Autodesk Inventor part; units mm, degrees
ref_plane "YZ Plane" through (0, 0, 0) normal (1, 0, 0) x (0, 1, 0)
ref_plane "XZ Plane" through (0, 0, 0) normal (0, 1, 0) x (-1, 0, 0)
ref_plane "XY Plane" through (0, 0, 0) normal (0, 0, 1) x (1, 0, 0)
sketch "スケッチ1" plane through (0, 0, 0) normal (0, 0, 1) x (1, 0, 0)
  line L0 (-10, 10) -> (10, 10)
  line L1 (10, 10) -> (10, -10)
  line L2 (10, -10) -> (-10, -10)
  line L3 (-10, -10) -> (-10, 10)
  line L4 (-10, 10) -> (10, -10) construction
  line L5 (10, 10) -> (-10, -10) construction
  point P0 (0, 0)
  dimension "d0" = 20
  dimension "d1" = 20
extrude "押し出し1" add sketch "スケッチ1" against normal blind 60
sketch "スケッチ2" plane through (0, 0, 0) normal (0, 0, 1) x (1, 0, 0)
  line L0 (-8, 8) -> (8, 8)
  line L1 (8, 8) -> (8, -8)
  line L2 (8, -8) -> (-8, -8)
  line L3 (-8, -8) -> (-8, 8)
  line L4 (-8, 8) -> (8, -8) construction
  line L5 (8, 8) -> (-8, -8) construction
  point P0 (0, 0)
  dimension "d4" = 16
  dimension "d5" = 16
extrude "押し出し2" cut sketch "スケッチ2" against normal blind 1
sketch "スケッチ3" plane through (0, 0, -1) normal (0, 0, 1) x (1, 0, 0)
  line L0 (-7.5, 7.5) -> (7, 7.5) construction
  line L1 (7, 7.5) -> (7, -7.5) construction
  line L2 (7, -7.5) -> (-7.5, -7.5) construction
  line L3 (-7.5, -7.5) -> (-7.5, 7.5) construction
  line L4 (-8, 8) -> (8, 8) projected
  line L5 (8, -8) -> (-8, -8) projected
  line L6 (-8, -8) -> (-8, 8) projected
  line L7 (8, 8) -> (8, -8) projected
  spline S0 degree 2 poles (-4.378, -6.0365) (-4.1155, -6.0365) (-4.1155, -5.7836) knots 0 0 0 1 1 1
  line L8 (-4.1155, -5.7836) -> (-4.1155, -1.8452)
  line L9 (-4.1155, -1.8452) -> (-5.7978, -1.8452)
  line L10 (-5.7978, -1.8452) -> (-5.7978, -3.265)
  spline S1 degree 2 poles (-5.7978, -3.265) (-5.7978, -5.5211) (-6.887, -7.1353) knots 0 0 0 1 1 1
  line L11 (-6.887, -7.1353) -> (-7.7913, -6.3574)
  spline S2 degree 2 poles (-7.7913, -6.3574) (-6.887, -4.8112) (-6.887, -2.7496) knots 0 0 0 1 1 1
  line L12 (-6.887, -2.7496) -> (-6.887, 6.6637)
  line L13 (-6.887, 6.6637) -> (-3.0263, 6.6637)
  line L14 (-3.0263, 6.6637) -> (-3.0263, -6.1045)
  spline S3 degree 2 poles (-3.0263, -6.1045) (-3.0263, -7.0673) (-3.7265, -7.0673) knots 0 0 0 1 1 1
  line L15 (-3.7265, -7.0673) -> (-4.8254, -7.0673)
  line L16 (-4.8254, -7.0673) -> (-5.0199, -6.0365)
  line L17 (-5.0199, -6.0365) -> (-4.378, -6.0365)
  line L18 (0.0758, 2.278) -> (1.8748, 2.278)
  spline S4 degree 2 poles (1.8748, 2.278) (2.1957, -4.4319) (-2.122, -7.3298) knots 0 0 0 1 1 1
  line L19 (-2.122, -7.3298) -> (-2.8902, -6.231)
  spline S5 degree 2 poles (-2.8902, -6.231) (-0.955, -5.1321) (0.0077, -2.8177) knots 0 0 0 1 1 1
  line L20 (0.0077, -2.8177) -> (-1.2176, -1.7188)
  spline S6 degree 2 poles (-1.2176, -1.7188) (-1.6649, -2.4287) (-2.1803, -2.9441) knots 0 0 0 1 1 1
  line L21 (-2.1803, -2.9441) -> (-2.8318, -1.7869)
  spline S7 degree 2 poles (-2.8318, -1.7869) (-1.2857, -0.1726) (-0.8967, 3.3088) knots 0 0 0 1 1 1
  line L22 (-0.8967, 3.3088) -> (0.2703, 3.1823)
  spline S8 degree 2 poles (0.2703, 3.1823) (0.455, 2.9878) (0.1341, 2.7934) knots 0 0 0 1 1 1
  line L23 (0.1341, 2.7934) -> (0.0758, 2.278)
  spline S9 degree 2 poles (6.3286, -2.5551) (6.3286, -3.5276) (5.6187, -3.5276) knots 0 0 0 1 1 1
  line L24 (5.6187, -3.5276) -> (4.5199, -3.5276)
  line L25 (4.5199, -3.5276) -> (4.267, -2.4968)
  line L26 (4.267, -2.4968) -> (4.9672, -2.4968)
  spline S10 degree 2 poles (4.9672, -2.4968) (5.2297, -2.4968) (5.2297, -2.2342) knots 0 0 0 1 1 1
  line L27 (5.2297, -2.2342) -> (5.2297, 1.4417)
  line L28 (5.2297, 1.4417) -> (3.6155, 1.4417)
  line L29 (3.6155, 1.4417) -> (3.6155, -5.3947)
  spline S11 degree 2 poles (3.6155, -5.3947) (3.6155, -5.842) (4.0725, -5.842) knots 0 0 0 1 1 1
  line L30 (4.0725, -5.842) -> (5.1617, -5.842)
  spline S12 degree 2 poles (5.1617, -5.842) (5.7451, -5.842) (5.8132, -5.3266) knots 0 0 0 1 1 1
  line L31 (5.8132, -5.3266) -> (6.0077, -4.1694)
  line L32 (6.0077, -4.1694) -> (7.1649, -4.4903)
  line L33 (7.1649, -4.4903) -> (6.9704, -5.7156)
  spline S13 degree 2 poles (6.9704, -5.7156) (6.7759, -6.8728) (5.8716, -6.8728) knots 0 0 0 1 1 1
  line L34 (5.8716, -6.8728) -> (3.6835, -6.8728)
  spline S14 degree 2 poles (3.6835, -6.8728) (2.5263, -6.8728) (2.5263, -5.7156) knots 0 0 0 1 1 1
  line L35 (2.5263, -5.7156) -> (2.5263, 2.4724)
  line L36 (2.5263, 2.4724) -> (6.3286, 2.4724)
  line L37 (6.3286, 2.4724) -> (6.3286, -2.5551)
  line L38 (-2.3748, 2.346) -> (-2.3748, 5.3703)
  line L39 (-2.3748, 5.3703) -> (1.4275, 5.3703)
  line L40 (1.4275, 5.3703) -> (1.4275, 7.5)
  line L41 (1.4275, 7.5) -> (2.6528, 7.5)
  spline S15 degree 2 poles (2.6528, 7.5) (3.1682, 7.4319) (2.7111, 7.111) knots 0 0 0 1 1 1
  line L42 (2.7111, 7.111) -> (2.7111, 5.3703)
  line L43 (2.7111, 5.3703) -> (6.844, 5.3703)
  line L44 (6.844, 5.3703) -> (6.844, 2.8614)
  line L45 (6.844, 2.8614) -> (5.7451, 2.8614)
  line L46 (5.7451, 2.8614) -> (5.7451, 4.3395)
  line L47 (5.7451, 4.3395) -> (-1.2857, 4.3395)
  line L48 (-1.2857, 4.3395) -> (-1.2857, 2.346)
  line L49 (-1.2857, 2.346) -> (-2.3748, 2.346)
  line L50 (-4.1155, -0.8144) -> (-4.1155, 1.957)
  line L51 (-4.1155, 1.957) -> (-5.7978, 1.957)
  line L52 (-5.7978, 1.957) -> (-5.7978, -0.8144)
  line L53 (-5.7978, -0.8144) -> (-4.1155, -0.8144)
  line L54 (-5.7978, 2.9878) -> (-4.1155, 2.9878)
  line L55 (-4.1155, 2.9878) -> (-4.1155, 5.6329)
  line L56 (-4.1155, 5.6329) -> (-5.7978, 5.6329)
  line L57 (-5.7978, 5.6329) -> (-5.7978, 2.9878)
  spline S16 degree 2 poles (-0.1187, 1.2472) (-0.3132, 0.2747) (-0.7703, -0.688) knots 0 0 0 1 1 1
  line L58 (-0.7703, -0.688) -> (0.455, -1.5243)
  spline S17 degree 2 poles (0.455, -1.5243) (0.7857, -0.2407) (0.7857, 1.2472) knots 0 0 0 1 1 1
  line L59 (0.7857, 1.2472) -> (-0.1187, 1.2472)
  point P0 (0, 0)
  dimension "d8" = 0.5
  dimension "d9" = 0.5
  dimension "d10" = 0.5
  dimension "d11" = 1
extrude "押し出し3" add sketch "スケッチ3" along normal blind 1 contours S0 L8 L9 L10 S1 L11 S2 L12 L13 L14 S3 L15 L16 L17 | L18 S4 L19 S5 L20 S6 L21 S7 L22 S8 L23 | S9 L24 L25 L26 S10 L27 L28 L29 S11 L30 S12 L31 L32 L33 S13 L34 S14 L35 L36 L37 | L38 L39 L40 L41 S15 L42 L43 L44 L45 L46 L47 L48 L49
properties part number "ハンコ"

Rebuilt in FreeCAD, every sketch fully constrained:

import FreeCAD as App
import Part
import Sketcher
from FreeCAD import Vector
Q = App.Units.Quantity

doc = App.newDocument("Part")
body = doc.addObject("PartDesign::Body", "Body")

sketch1 = body.newObject("Sketcher::SketchObject", "Sketch")
sketch1.AttachmentSupport = (doc.getObject("XY_Plane"), [""])
sketch1.MapMode = "FlatFace"
sketch1.addGeometry([
    Part.LineSegment(Vector(10, 10, 0), Vector(-10, 10, 0)),
    Part.LineSegment(Vector(-10, 10, 0), Vector(-10, -10, 0)),
    Part.LineSegment(Vector(-10, -10, 0), Vector(10, -10, 0)),
    Part.LineSegment(Vector(10, -10, 0), Vector(10, 10, 0)),
], False)
sketch1.addConstraint([
    Sketcher.Constraint("Coincident", 0, 2, 1, 1),
    Sketcher.Constraint("Coincident", 1, 2, 2, 1),
    Sketcher.Constraint("Coincident", 2, 2, 3, 1),
    Sketcher.Constraint("Coincident", 3, 2, 0, 1),
    Sketcher.Constraint("Horizontal", 0),
    Sketcher.Constraint("Vertical", 1),
    Sketcher.Constraint("Horizontal", 2),
    Sketcher.Constraint("Vertical", 3),
    Sketcher.Constraint("Symmetric", 0, 2, 2, 2, -1, 1),
    Sketcher.Constraint("Equal", 2, 1),
    Sketcher.Constraint("DistanceX", 0, 2, 0, 1, Q("20 mm")),
])
pad1 = body.newObject("PartDesign::Pad", "Pad")
pad1.Profile = sketch1
pad1.Length = 60
pad1.Reversed = True

sketch2 = body.newObject("Sketcher::SketchObject", "Sketch001")
sketch2.AttachmentSupport = (doc.getObject("XY_Plane"), [""])
sketch2.MapMode = "FlatFace"
sketch2.addGeometry([
    Part.LineSegment(Vector(8, 8, 0), Vector(-8, 8, 0)),
    Part.LineSegment(Vector(-8, 8, 0), Vector(-8, -8, 0)),
    Part.LineSegment(Vector(-8, -8, 0), Vector(8, -8, 0)),
    Part.LineSegment(Vector(8, -8, 0), Vector(8, 8, 0)),
], False)
sketch2.addConstraint([
    Sketcher.Constraint("Coincident", 0, 2, 1, 1),
    Sketcher.Constraint("Coincident", 1, 2, 2, 1),
    Sketcher.Constraint("Coincident", 2, 2, 3, 1),
    Sketcher.Constraint("Coincident", 3, 2, 0, 1),
    Sketcher.Constraint("Horizontal", 0),
    Sketcher.Constraint("Vertical", 1),
    Sketcher.Constraint("Horizontal", 2),
    Sketcher.Constraint("Vertical", 3),
    Sketcher.Constraint("Symmetric", 0, 2, 2, 2, -1, 1),
    Sketcher.Constraint("Equal", 2, 1),
    Sketcher.Constraint("DistanceX", 0, 2, 0, 1, Q("16 mm")),
])
pocket1 = body.newObject("PartDesign::Pocket", "Pocket")
pocket1.Profile = sketch2
pocket1.Length = 1

sketch3 = body.newObject("Sketcher::SketchObject", "Sketch002")
sketch3.AttachmentSupport = (doc.getObject("XY_Plane"), [""])
sketch3.MapMode = "FlatFace"
sketch3.AttachmentOffset = App.Placement(Vector(0, 0, -1), App.Rotation())
sketch3.addGeometry([
    Part.BSplineCurve([Vector(-4.378, -6.0365, 0), Vector(-4.1155, -6.0365, 0), Vector(-4.1155, -5.7836, 0)], [3, 3], [0, 1], False, 2, [1, 1, 1], False),
    Part.LineSegment(Vector(-4.378, -6.0365, 0), Vector(-5.0199, -6.0365, 0)),
    Part.LineSegment(Vector(-5.0199, -6.0365, 0), Vector(-4.8254, -7.0673, 0)),
    Part.LineSegment(Vector(-4.8254, -7.0673, 0), Vector(-3.7265, -7.0673, 0)),
    Part.BSplineCurve([Vector(-3.0263, -6.1045, 0), Vector(-3.0263, -7.0673, 0), Vector(-3.7265, -7.0673, 0)], [3, 3], [0, 1], False, 2, [1, 1, 1], False),
    Part.LineSegment(Vector(-3.0263, -6.1045, 0), Vector(-3.0263, 6.6637, 0)),
    Part.LineSegment(Vector(-3.0263, 6.6637, 0), Vector(-6.887, 6.6637, 0)),
    Part.LineSegment(Vector(-6.887, 6.6637, 0), Vector(-6.887, -2.7496, 0)),
    Part.BSplineCurve([Vector(-7.7913, -6.3574, 0), Vector(-6.887, -4.8112, 0), Vector(-6.887, -2.7496, 0)], [3, 3], [0, 1], False, 2, [1, 1, 1], False),
    Part.LineSegment(Vector(-7.7913, -6.3574, 0), Vector(-6.887, -7.1353, 0)),
    Part.BSplineCurve([Vector(-5.7978, -3.265, 0), Vector(-5.7978, -5.5211, 0), Vector(-6.887, -7.1353, 0)], [3, 3], [0, 1], False, 2, [1, 1, 1], False),
    Part.LineSegment(Vector(-5.7978, -3.265, 0), Vector(-5.7978, -1.8452, 0)),
    Part.LineSegment(Vector(-5.7978, -1.8452, 0), Vector(-4.1155, -1.8452, 0)),
    Part.LineSegment(Vector(-4.1155, -1.8452, 0), Vector(-4.1155, -5.7836, 0)),
    Part.LineSegment(Vector(-4.1155, 1.957, 0), Vector(-4.1155, -0.8144, 0)),
    Part.LineSegment(Vector(-4.1155, -0.8144, 0), Vector(-5.7978, -0.8144, 0)),
    Part.LineSegment(Vector(-5.7978, -0.8144, 0), Vector(-5.7978, 1.957, 0)),
    Part.LineSegment(Vector(-5.7978, 1.957, 0), Vector(-4.1155, 1.957, 0)),
    Part.LineSegment(Vector(-4.1155, 2.9878, 0), Vector(-5.7978, 2.9878, 0)),
    Part.LineSegment(Vector(-5.7978, 2.9878, 0), Vector(-5.7978, 5.6329, 0)),
    Part.LineSegment(Vector(-5.7978, 5.6329, 0), Vector(-4.1155, 5.6329, 0)),
    Part.LineSegment(Vector(-4.1155, 5.6329, 0), Vector(-4.1155, 2.9878, 0)),
    Part.LineSegment(Vector(1.8748, 2.278, 0), Vector(0.0758, 2.278, 0)),
    Part.LineSegment(Vector(0.0758, 2.278, 0), Vector(0.1341, 2.7934, 0)),
    Part.BSplineCurve([Vector(0.2703, 3.1823, 0), Vector(0.455, 2.9878, 0), Vector(0.1341, 2.7934, 0)], [3, 3], [0, 1], False, 2, [1, 1, 1], False),
    Part.LineSegment(Vector(0.2703, 3.1823, 0), Vector(-0.8967, 3.3088, 0)),
    Part.BSplineCurve([Vector(-2.8318, -1.7869, 0), Vector(-1.2857, -0.1726, 0), Vector(-0.8967, 3.3088, 0)], [3, 3], [0, 1], False, 2, [1, 1, 1], False),
    Part.LineSegment(Vector(-2.8318, -1.7869, 0), Vector(-2.1803, -2.9441, 0)),
    Part.BSplineCurve([Vector(-1.2176, -1.7188, 0), Vector(-1.6649, -2.4287, 0), Vector(-2.1803, -2.9441, 0)], [3, 3], [0, 1], False, 2, [1, 1, 1], False),
    Part.LineSegment(Vector(-1.2176, -1.7188, 0), Vector(0.0077, -2.8177, 0)),
    Part.BSplineCurve([Vector(-2.8902, -6.231, 0), Vector(-0.955, -5.1321, 0), Vector(0.0077, -2.8177, 0)], [3, 3], [0, 1], False, 2, [1, 1, 1], False),
    Part.LineSegment(Vector(-2.8902, -6.231, 0), Vector(-2.122, -7.3298, 0)),
    Part.BSplineCurve([Vector(1.8748, 2.278, 0), Vector(2.1957, -4.4319, 0), Vector(-2.122, -7.3298, 0)], [3, 3], [0, 1], False, 2, [1, 1, 1], False),
    Part.BSplineCurve([Vector(-0.1187, 1.2472, 0), Vector(-0.3132, 0.2747, 0), Vector(-0.7703, -0.688, 0)], [3, 3], [0, 1], False, 2, [1, 1, 1], False),
    Part.LineSegment(Vector(-0.1187, 1.2472, 0), Vector(0.7857, 1.2472, 0)),
    Part.BSplineCurve([Vector(0.455, -1.5243, 0), Vector(0.7857, -0.2407, 0), Vector(0.7857, 1.2472, 0)], [3, 3], [0, 1], False, 2, [1, 1, 1], False),
    Part.LineSegment(Vector(0.455, -1.5243, 0), Vector(-0.7703, -0.688, 0)),
    Part.BSplineCurve([Vector(6.3286, -2.5551, 0), Vector(6.3286, -3.5276, 0), Vector(5.6187, -3.5276, 0)], [3, 3], [0, 1], False, 2, [1, 1, 1], False),
    Part.LineSegment(Vector(6.3286, -2.5551, 0), Vector(6.3286, 2.4724, 0)),
    Part.LineSegment(Vector(6.3286, 2.4724, 0), Vector(2.5263, 2.4724, 0)),
    Part.LineSegment(Vector(2.5263, 2.4724, 0), Vector(2.5263, -5.7156, 0)),
    Part.BSplineCurve([Vector(3.6835, -6.8728, 0), Vector(2.5263, -6.8728, 0), Vector(2.5263, -5.7156, 0)], [3, 3], [0, 1], False, 2, [1, 1, 1], False),
    Part.LineSegment(Vector(3.6835, -6.8728, 0), Vector(5.8716, -6.8728, 0)),
    Part.BSplineCurve([Vector(6.9704, -5.7156, 0), Vector(6.7759, -6.8728, 0), Vector(5.8716, -6.8728, 0)], [3, 3], [0, 1], False, 2, [1, 1, 1], False),
    Part.LineSegment(Vector(6.9704, -5.7156, 0), Vector(7.1649, -4.4903, 0)),
    Part.LineSegment(Vector(7.1649, -4.4903, 0), Vector(6.0077, -4.1694, 0)),
    Part.LineSegment(Vector(6.0077, -4.1694, 0), Vector(5.8132, -5.3266, 0)),
    Part.BSplineCurve([Vector(5.1617, -5.842, 0), Vector(5.7451, -5.842, 0), Vector(5.8132, -5.3266, 0)], [3, 3], [0, 1], False, 2, [1, 1, 1], False),
    Part.LineSegment(Vector(5.1617, -5.842, 0), Vector(4.0725, -5.842, 0)),
    Part.BSplineCurve([Vector(3.6155, -5.3947, 0), Vector(3.6155, -5.842, 0), Vector(4.0725, -5.842, 0)], [3, 3], [0, 1], False, 2, [1, 1, 1], False),
    Part.LineSegment(Vector(3.6155, -5.3947, 0), Vector(3.6155, 1.4417, 0)),
    Part.LineSegment(Vector(3.6155, 1.4417, 0), Vector(5.2297, 1.4417, 0)),
    Part.LineSegment(Vector(5.2297, 1.4417, 0), Vector(5.2297, -2.2342, 0)),
    Part.BSplineCurve([Vector(4.9672, -2.4968, 0), Vector(5.2297, -2.4968, 0), Vector(5.2297, -2.2342, 0)], [3, 3], [0, 1], False, 2, [1, 1, 1], False),
    Part.LineSegment(Vector(4.9672, -2.4968, 0), Vector(4.267, -2.4968, 0)),
    Part.LineSegment(Vector(4.267, -2.4968, 0), Vector(4.5199, -3.5276, 0)),
    Part.LineSegment(Vector(4.5199, -3.5276, 0), Vector(5.6187, -3.5276, 0)),
    Part.LineSegment(Vector(-2.3748, 5.3703, 0), Vector(-2.3748, 2.346, 0)),
    Part.LineSegment(Vector(-2.3748, 2.346, 0), Vector(-1.2857, 2.346, 0)),
    Part.LineSegment(Vector(-1.2857, 2.346, 0), Vector(-1.2857, 4.3395, 0)),
    Part.LineSegment(Vector(-1.2857, 4.3395, 0), Vector(5.7451, 4.3395, 0)),
    Part.LineSegment(Vector(5.7451, 4.3395, 0), Vector(5.7451, 2.8614, 0)),
    Part.LineSegment(Vector(5.7451, 2.8614, 0), Vector(6.844, 2.8614, 0)),
    Part.LineSegment(Vector(6.844, 2.8614, 0), Vector(6.844, 5.3703, 0)),
    Part.LineSegment(Vector(6.844, 5.3703, 0), Vector(2.7111, 5.3703, 0)),
    Part.LineSegment(Vector(2.7111, 5.3703, 0), Vector(2.7111, 7.111, 0)),
    Part.BSplineCurve([Vector(2.6528, 7.5, 0), Vector(3.1682, 7.4319, 0), Vector(2.7111, 7.111, 0)], [3, 3], [0, 1], False, 2, [1, 1, 1], False),
    Part.LineSegment(Vector(2.6528, 7.5, 0), Vector(1.4275, 7.5, 0)),
    Part.LineSegment(Vector(1.4275, 7.5, 0), Vector(1.4275, 5.3703, 0)),
    Part.LineSegment(Vector(1.4275, 5.3703, 0), Vector(-2.3748, 5.3703, 0)),
], False)
sketch3.addConstraint([
    Sketcher.Constraint("Block", 0),
    Sketcher.Constraint("Block", 4),
    Sketcher.Constraint("Block", 8),
    Sketcher.Constraint("Block", 10),
    Sketcher.Constraint("Block", 24),
    Sketcher.Constraint("Block", 26),
    Sketcher.Constraint("Block", 28),
    Sketcher.Constraint("Block", 30),
    Sketcher.Constraint("Block", 32),
    Sketcher.Constraint("Block", 33),
    Sketcher.Constraint("Block", 35),
    Sketcher.Constraint("Block", 37),
    Sketcher.Constraint("Block", 41),
    Sketcher.Constraint("Block", 43),
    Sketcher.Constraint("Block", 47),
    Sketcher.Constraint("Block", 49),
    Sketcher.Constraint("Block", 53),
    Sketcher.Constraint("Block", 66),
    Sketcher.Constraint("Coincident", 0, 1, 1, 1),
    Sketcher.Constraint("Coincident", 1, 2, 2, 1),
    Sketcher.Constraint("Coincident", 2, 2, 3, 1),
    Sketcher.Constraint("Coincident", 3, 2, 4, 2),
    Sketcher.Constraint("Coincident", 4, 1, 5, 1),
    Sketcher.Constraint("Coincident", 5, 2, 6, 1),
    Sketcher.Constraint("Coincident", 6, 2, 7, 1),
    Sketcher.Constraint("Coincident", 7, 2, 8, 2),
    Sketcher.Constraint("Coincident", 8, 1, 9, 1),
    Sketcher.Constraint("Coincident", 9, 2, 10, 2),
    Sketcher.Constraint("Coincident", 10, 1, 11, 1),
    Sketcher.Constraint("Coincident", 11, 2, 12, 1),
    Sketcher.Constraint("Coincident", 12, 2, 13, 1),
    Sketcher.Constraint("Coincident", 13, 2, 0, 2),
    Sketcher.Constraint("Coincident", 14, 2, 15, 1),
    Sketcher.Constraint("Coincident", 15, 2, 16, 1),
    Sketcher.Constraint("Coincident", 16, 2, 17, 1),
    Sketcher.Constraint("Coincident", 17, 2, 14, 1),
    Sketcher.Constraint("Coincident", 18, 2, 19, 1),
    Sketcher.Constraint("Coincident", 19, 2, 20, 1),
    Sketcher.Constraint("Coincident", 20, 2, 21, 1),
    Sketcher.Constraint("Coincident", 21, 2, 18, 1),
    Sketcher.Constraint("Coincident", 22, 2, 23, 1),
    Sketcher.Constraint("Coincident", 23, 2, 24, 2),
    Sketcher.Constraint("Coincident", 24, 1, 25, 1),
    Sketcher.Constraint("Coincident", 25, 2, 26, 2),
    Sketcher.Constraint("Coincident", 26, 1, 27, 1),
    Sketcher.Constraint("Coincident", 27, 2, 28, 2),
    Sketcher.Constraint("Coincident", 28, 1, 29, 1),
    Sketcher.Constraint("Coincident", 29, 2, 30, 2),
    Sketcher.Constraint("Coincident", 30, 1, 31, 1),
    Sketcher.Constraint("Coincident", 31, 2, 32, 2),
    Sketcher.Constraint("Coincident", 32, 1, 22, 1),
    Sketcher.Constraint("Coincident", 33, 1, 34, 1),
    Sketcher.Constraint("Coincident", 34, 2, 35, 2),
    Sketcher.Constraint("Coincident", 35, 1, 36, 1),
    Sketcher.Constraint("Coincident", 36, 2, 33, 2),
    Sketcher.Constraint("Coincident", 37, 1, 38, 1),
    Sketcher.Constraint("Coincident", 38, 2, 39, 1),
    Sketcher.Constraint("Coincident", 39, 2, 40, 1),
    Sketcher.Constraint("Coincident", 40, 2, 41, 2),
    Sketcher.Constraint("Coincident", 41, 1, 42, 1),
    Sketcher.Constraint("Coincident", 42, 2, 43, 2),
    Sketcher.Constraint("Coincident", 43, 1, 44, 1),
    Sketcher.Constraint("Coincident", 44, 2, 45, 1),
    Sketcher.Constraint("Coincident", 45, 2, 46, 1),
    Sketcher.Constraint("Coincident", 46, 2, 47, 2),
    Sketcher.Constraint("Coincident", 47, 1, 48, 1),
    Sketcher.Constraint("Coincident", 48, 2, 49, 2),
    Sketcher.Constraint("Coincident", 49, 1, 50, 1),
    Sketcher.Constraint("Coincident", 50, 2, 51, 1),
    Sketcher.Constraint("Coincident", 51, 2, 52, 1),
    Sketcher.Constraint("Coincident", 52, 2, 53, 2),
    Sketcher.Constraint("Coincident", 53, 1, 54, 1),
    Sketcher.Constraint("Coincident", 54, 2, 55, 1),
    Sketcher.Constraint("Coincident", 55, 2, 56, 1),
    Sketcher.Constraint("Coincident", 56, 2, 37, 2),
    Sketcher.Constraint("Coincident", 57, 2, 58, 1),
    Sketcher.Constraint("Coincident", 58, 2, 59, 1),
    Sketcher.Constraint("Coincident", 59, 2, 60, 1),
    Sketcher.Constraint("Coincident", 60, 2, 61, 1),
    Sketcher.Constraint("Coincident", 61, 2, 62, 1),
    Sketcher.Constraint("Coincident", 62, 2, 63, 1),
    Sketcher.Constraint("Coincident", 63, 2, 64, 1),
    Sketcher.Constraint("Coincident", 64, 2, 65, 1),
    Sketcher.Constraint("Coincident", 65, 2, 66, 2),
    Sketcher.Constraint("Coincident", 66, 1, 67, 1),
    Sketcher.Constraint("Coincident", 67, 2, 68, 1),
    Sketcher.Constraint("Coincident", 68, 2, 69, 1),
    Sketcher.Constraint("Coincident", 69, 2, 57, 1),
    Sketcher.Constraint("Horizontal", 1),
    Sketcher.Constraint("Horizontal", 3),
    Sketcher.Constraint("Vertical", 5),
    Sketcher.Constraint("Horizontal", 6),
    Sketcher.Constraint("Vertical", 7),
    Sketcher.Constraint("Vertical", 11),
    Sketcher.Constraint("Horizontal", 12),
    Sketcher.Constraint("Vertical", 13),
    Sketcher.Constraint("Vertical", 14),
    Sketcher.Constraint("Horizontal", 15),
    Sketcher.Constraint("Vertical", 16),
    Sketcher.Constraint("Horizontal", 17),
    Sketcher.Constraint("Horizontal", 18),
    Sketcher.Constraint("Vertical", 19),
    Sketcher.Constraint("Horizontal", 20),
    Sketcher.Constraint("Vertical", 21),
    Sketcher.Constraint("Horizontal", 22),
    Sketcher.Constraint("Vertical", 38),
    Sketcher.Constraint("Horizontal", 39),
    Sketcher.Constraint("Vertical", 40),
    Sketcher.Constraint("Vertical", 50),
    Sketcher.Constraint("Horizontal", 51),
    Sketcher.Constraint("Vertical", 52),
    Sketcher.Constraint("Horizontal", 54),
    Sketcher.Constraint("Horizontal", 56),
    Sketcher.Constraint("Vertical", 57),
    Sketcher.Constraint("Horizontal", 58),
    Sketcher.Constraint("Vertical", 59),
    Sketcher.Constraint("Horizontal", 60),
    Sketcher.Constraint("Vertical", 61),
    Sketcher.Constraint("Horizontal", 62),
    Sketcher.Constraint("Vertical", 63),
    Sketcher.Constraint("Horizontal", 64),
    Sketcher.Constraint("Vertical", 65),
    Sketcher.Constraint("Horizontal", 67),
    Sketcher.Constraint("Vertical", 68),
    Sketcher.Constraint("Horizontal", 69),
    Sketcher.Constraint("DistanceX", 29, 2, 45, 2, Q("6 mm")),
    Sketcher.Constraint("DistanceX", 1, 2, 1, 1, Q("0.642 mm")),
    Sketcher.Constraint("DistanceX", 3, 1, 3, 2, Q("1.099 mm")),
    Sketcher.Constraint("DistanceX", 22, 2, 22, 1, Q("1.799 mm")),
    Sketcher.Constraint("DistanceX", 58, 1, 58, 2, Q("1.089 mm")),
    Sketcher.Constraint("DistanceX", 62, 1, 62, 2, Q("1.099 mm")),
    Sketcher.Constraint("DistanceX", 64, 2, 64, 1, Q("4.133 mm")),
    Sketcher.Constraint("DistanceY", 19, 1, 19, 2, Q("2.645 mm")),
    Sketcher.Constraint("DistanceY", 40, 2, 40, 1, Q("8.188 mm")),
    Sketcher.Constraint("DistanceY", 52, 2, 52, 1, Q("3.676 mm")),
    Sketcher.Constraint("DistanceY", 61, 2, 61, 1, Q("1.478 mm")),
    Sketcher.Constraint("DistanceY", 63, 1, 63, 2, Q("2.509 mm")),
    Sketcher.Constraint("DistanceX", -1, 1, 55, 2, Q("4.52 mm")),
    Sketcher.Constraint("DistanceY", 9, 2, 11, 2, Q("5.29 mm")),
    Sketcher.Constraint("DistanceX", 15, 2, 15, 1, Q("1.6823 mm")),
    Sketcher.Constraint("DistanceX", 18, 2, 18, 1, Q("1.6823 mm")),
    Sketcher.Constraint("DistanceX", 54, 2, 54, 1, Q("0.7002 mm")),
    Sketcher.Constraint("DistanceX", 60, 1, 60, 2, Q("7.0308 mm")),
    Sketcher.Constraint("DistanceX", 67, 2, 67, 1, Q("1.2253 mm")),
    Sketcher.Constraint("DistanceY", 5, 1, 5, 2, Q("12.7682 mm")),
    Sketcher.Constraint("DistanceY", 14, 2, 14, 1, Q("2.7714 mm")),
    Sketcher.Constraint("DistanceY", 57, 2, 57, 1, Q("3.0243 mm")),
    Sketcher.Constraint("DistanceY", 59, 1, 59, 2, Q("1.9935 mm")),
    Sketcher.Constraint("DistanceY", 65, 1, 65, 2, Q("1.7407 mm")),
    Sketcher.Constraint("DistanceY", -1, 1, 16, 2, Q("1.957 mm")),
    Sketcher.Constraint("DistanceY", -1, 1, 19, 2, Q("5.633 mm")),
    Sketcher.Constraint("DistanceX", -1, 1, 44, 2, Q("7.165 mm")),
    Sketcher.Constraint("DistanceY", 44, 2, 45, 2, Q("0.321 mm")),
    Sketcher.Constraint("DistanceY", 44, 2, 52, 2, Q("2.256 mm")),
    Sketcher.Constraint("DistanceX", 14, 2, -1, 1, Q("4.1155 mm")),
    Sketcher.Constraint("DistanceX", 18, 2, -1, 1, Q("5.7978 mm")),
])
pad2 = body.newObject("PartDesign::Pad", "Pad001")
pad2.Profile = sketch3
pad2.Length = 1

doc.recompute()
